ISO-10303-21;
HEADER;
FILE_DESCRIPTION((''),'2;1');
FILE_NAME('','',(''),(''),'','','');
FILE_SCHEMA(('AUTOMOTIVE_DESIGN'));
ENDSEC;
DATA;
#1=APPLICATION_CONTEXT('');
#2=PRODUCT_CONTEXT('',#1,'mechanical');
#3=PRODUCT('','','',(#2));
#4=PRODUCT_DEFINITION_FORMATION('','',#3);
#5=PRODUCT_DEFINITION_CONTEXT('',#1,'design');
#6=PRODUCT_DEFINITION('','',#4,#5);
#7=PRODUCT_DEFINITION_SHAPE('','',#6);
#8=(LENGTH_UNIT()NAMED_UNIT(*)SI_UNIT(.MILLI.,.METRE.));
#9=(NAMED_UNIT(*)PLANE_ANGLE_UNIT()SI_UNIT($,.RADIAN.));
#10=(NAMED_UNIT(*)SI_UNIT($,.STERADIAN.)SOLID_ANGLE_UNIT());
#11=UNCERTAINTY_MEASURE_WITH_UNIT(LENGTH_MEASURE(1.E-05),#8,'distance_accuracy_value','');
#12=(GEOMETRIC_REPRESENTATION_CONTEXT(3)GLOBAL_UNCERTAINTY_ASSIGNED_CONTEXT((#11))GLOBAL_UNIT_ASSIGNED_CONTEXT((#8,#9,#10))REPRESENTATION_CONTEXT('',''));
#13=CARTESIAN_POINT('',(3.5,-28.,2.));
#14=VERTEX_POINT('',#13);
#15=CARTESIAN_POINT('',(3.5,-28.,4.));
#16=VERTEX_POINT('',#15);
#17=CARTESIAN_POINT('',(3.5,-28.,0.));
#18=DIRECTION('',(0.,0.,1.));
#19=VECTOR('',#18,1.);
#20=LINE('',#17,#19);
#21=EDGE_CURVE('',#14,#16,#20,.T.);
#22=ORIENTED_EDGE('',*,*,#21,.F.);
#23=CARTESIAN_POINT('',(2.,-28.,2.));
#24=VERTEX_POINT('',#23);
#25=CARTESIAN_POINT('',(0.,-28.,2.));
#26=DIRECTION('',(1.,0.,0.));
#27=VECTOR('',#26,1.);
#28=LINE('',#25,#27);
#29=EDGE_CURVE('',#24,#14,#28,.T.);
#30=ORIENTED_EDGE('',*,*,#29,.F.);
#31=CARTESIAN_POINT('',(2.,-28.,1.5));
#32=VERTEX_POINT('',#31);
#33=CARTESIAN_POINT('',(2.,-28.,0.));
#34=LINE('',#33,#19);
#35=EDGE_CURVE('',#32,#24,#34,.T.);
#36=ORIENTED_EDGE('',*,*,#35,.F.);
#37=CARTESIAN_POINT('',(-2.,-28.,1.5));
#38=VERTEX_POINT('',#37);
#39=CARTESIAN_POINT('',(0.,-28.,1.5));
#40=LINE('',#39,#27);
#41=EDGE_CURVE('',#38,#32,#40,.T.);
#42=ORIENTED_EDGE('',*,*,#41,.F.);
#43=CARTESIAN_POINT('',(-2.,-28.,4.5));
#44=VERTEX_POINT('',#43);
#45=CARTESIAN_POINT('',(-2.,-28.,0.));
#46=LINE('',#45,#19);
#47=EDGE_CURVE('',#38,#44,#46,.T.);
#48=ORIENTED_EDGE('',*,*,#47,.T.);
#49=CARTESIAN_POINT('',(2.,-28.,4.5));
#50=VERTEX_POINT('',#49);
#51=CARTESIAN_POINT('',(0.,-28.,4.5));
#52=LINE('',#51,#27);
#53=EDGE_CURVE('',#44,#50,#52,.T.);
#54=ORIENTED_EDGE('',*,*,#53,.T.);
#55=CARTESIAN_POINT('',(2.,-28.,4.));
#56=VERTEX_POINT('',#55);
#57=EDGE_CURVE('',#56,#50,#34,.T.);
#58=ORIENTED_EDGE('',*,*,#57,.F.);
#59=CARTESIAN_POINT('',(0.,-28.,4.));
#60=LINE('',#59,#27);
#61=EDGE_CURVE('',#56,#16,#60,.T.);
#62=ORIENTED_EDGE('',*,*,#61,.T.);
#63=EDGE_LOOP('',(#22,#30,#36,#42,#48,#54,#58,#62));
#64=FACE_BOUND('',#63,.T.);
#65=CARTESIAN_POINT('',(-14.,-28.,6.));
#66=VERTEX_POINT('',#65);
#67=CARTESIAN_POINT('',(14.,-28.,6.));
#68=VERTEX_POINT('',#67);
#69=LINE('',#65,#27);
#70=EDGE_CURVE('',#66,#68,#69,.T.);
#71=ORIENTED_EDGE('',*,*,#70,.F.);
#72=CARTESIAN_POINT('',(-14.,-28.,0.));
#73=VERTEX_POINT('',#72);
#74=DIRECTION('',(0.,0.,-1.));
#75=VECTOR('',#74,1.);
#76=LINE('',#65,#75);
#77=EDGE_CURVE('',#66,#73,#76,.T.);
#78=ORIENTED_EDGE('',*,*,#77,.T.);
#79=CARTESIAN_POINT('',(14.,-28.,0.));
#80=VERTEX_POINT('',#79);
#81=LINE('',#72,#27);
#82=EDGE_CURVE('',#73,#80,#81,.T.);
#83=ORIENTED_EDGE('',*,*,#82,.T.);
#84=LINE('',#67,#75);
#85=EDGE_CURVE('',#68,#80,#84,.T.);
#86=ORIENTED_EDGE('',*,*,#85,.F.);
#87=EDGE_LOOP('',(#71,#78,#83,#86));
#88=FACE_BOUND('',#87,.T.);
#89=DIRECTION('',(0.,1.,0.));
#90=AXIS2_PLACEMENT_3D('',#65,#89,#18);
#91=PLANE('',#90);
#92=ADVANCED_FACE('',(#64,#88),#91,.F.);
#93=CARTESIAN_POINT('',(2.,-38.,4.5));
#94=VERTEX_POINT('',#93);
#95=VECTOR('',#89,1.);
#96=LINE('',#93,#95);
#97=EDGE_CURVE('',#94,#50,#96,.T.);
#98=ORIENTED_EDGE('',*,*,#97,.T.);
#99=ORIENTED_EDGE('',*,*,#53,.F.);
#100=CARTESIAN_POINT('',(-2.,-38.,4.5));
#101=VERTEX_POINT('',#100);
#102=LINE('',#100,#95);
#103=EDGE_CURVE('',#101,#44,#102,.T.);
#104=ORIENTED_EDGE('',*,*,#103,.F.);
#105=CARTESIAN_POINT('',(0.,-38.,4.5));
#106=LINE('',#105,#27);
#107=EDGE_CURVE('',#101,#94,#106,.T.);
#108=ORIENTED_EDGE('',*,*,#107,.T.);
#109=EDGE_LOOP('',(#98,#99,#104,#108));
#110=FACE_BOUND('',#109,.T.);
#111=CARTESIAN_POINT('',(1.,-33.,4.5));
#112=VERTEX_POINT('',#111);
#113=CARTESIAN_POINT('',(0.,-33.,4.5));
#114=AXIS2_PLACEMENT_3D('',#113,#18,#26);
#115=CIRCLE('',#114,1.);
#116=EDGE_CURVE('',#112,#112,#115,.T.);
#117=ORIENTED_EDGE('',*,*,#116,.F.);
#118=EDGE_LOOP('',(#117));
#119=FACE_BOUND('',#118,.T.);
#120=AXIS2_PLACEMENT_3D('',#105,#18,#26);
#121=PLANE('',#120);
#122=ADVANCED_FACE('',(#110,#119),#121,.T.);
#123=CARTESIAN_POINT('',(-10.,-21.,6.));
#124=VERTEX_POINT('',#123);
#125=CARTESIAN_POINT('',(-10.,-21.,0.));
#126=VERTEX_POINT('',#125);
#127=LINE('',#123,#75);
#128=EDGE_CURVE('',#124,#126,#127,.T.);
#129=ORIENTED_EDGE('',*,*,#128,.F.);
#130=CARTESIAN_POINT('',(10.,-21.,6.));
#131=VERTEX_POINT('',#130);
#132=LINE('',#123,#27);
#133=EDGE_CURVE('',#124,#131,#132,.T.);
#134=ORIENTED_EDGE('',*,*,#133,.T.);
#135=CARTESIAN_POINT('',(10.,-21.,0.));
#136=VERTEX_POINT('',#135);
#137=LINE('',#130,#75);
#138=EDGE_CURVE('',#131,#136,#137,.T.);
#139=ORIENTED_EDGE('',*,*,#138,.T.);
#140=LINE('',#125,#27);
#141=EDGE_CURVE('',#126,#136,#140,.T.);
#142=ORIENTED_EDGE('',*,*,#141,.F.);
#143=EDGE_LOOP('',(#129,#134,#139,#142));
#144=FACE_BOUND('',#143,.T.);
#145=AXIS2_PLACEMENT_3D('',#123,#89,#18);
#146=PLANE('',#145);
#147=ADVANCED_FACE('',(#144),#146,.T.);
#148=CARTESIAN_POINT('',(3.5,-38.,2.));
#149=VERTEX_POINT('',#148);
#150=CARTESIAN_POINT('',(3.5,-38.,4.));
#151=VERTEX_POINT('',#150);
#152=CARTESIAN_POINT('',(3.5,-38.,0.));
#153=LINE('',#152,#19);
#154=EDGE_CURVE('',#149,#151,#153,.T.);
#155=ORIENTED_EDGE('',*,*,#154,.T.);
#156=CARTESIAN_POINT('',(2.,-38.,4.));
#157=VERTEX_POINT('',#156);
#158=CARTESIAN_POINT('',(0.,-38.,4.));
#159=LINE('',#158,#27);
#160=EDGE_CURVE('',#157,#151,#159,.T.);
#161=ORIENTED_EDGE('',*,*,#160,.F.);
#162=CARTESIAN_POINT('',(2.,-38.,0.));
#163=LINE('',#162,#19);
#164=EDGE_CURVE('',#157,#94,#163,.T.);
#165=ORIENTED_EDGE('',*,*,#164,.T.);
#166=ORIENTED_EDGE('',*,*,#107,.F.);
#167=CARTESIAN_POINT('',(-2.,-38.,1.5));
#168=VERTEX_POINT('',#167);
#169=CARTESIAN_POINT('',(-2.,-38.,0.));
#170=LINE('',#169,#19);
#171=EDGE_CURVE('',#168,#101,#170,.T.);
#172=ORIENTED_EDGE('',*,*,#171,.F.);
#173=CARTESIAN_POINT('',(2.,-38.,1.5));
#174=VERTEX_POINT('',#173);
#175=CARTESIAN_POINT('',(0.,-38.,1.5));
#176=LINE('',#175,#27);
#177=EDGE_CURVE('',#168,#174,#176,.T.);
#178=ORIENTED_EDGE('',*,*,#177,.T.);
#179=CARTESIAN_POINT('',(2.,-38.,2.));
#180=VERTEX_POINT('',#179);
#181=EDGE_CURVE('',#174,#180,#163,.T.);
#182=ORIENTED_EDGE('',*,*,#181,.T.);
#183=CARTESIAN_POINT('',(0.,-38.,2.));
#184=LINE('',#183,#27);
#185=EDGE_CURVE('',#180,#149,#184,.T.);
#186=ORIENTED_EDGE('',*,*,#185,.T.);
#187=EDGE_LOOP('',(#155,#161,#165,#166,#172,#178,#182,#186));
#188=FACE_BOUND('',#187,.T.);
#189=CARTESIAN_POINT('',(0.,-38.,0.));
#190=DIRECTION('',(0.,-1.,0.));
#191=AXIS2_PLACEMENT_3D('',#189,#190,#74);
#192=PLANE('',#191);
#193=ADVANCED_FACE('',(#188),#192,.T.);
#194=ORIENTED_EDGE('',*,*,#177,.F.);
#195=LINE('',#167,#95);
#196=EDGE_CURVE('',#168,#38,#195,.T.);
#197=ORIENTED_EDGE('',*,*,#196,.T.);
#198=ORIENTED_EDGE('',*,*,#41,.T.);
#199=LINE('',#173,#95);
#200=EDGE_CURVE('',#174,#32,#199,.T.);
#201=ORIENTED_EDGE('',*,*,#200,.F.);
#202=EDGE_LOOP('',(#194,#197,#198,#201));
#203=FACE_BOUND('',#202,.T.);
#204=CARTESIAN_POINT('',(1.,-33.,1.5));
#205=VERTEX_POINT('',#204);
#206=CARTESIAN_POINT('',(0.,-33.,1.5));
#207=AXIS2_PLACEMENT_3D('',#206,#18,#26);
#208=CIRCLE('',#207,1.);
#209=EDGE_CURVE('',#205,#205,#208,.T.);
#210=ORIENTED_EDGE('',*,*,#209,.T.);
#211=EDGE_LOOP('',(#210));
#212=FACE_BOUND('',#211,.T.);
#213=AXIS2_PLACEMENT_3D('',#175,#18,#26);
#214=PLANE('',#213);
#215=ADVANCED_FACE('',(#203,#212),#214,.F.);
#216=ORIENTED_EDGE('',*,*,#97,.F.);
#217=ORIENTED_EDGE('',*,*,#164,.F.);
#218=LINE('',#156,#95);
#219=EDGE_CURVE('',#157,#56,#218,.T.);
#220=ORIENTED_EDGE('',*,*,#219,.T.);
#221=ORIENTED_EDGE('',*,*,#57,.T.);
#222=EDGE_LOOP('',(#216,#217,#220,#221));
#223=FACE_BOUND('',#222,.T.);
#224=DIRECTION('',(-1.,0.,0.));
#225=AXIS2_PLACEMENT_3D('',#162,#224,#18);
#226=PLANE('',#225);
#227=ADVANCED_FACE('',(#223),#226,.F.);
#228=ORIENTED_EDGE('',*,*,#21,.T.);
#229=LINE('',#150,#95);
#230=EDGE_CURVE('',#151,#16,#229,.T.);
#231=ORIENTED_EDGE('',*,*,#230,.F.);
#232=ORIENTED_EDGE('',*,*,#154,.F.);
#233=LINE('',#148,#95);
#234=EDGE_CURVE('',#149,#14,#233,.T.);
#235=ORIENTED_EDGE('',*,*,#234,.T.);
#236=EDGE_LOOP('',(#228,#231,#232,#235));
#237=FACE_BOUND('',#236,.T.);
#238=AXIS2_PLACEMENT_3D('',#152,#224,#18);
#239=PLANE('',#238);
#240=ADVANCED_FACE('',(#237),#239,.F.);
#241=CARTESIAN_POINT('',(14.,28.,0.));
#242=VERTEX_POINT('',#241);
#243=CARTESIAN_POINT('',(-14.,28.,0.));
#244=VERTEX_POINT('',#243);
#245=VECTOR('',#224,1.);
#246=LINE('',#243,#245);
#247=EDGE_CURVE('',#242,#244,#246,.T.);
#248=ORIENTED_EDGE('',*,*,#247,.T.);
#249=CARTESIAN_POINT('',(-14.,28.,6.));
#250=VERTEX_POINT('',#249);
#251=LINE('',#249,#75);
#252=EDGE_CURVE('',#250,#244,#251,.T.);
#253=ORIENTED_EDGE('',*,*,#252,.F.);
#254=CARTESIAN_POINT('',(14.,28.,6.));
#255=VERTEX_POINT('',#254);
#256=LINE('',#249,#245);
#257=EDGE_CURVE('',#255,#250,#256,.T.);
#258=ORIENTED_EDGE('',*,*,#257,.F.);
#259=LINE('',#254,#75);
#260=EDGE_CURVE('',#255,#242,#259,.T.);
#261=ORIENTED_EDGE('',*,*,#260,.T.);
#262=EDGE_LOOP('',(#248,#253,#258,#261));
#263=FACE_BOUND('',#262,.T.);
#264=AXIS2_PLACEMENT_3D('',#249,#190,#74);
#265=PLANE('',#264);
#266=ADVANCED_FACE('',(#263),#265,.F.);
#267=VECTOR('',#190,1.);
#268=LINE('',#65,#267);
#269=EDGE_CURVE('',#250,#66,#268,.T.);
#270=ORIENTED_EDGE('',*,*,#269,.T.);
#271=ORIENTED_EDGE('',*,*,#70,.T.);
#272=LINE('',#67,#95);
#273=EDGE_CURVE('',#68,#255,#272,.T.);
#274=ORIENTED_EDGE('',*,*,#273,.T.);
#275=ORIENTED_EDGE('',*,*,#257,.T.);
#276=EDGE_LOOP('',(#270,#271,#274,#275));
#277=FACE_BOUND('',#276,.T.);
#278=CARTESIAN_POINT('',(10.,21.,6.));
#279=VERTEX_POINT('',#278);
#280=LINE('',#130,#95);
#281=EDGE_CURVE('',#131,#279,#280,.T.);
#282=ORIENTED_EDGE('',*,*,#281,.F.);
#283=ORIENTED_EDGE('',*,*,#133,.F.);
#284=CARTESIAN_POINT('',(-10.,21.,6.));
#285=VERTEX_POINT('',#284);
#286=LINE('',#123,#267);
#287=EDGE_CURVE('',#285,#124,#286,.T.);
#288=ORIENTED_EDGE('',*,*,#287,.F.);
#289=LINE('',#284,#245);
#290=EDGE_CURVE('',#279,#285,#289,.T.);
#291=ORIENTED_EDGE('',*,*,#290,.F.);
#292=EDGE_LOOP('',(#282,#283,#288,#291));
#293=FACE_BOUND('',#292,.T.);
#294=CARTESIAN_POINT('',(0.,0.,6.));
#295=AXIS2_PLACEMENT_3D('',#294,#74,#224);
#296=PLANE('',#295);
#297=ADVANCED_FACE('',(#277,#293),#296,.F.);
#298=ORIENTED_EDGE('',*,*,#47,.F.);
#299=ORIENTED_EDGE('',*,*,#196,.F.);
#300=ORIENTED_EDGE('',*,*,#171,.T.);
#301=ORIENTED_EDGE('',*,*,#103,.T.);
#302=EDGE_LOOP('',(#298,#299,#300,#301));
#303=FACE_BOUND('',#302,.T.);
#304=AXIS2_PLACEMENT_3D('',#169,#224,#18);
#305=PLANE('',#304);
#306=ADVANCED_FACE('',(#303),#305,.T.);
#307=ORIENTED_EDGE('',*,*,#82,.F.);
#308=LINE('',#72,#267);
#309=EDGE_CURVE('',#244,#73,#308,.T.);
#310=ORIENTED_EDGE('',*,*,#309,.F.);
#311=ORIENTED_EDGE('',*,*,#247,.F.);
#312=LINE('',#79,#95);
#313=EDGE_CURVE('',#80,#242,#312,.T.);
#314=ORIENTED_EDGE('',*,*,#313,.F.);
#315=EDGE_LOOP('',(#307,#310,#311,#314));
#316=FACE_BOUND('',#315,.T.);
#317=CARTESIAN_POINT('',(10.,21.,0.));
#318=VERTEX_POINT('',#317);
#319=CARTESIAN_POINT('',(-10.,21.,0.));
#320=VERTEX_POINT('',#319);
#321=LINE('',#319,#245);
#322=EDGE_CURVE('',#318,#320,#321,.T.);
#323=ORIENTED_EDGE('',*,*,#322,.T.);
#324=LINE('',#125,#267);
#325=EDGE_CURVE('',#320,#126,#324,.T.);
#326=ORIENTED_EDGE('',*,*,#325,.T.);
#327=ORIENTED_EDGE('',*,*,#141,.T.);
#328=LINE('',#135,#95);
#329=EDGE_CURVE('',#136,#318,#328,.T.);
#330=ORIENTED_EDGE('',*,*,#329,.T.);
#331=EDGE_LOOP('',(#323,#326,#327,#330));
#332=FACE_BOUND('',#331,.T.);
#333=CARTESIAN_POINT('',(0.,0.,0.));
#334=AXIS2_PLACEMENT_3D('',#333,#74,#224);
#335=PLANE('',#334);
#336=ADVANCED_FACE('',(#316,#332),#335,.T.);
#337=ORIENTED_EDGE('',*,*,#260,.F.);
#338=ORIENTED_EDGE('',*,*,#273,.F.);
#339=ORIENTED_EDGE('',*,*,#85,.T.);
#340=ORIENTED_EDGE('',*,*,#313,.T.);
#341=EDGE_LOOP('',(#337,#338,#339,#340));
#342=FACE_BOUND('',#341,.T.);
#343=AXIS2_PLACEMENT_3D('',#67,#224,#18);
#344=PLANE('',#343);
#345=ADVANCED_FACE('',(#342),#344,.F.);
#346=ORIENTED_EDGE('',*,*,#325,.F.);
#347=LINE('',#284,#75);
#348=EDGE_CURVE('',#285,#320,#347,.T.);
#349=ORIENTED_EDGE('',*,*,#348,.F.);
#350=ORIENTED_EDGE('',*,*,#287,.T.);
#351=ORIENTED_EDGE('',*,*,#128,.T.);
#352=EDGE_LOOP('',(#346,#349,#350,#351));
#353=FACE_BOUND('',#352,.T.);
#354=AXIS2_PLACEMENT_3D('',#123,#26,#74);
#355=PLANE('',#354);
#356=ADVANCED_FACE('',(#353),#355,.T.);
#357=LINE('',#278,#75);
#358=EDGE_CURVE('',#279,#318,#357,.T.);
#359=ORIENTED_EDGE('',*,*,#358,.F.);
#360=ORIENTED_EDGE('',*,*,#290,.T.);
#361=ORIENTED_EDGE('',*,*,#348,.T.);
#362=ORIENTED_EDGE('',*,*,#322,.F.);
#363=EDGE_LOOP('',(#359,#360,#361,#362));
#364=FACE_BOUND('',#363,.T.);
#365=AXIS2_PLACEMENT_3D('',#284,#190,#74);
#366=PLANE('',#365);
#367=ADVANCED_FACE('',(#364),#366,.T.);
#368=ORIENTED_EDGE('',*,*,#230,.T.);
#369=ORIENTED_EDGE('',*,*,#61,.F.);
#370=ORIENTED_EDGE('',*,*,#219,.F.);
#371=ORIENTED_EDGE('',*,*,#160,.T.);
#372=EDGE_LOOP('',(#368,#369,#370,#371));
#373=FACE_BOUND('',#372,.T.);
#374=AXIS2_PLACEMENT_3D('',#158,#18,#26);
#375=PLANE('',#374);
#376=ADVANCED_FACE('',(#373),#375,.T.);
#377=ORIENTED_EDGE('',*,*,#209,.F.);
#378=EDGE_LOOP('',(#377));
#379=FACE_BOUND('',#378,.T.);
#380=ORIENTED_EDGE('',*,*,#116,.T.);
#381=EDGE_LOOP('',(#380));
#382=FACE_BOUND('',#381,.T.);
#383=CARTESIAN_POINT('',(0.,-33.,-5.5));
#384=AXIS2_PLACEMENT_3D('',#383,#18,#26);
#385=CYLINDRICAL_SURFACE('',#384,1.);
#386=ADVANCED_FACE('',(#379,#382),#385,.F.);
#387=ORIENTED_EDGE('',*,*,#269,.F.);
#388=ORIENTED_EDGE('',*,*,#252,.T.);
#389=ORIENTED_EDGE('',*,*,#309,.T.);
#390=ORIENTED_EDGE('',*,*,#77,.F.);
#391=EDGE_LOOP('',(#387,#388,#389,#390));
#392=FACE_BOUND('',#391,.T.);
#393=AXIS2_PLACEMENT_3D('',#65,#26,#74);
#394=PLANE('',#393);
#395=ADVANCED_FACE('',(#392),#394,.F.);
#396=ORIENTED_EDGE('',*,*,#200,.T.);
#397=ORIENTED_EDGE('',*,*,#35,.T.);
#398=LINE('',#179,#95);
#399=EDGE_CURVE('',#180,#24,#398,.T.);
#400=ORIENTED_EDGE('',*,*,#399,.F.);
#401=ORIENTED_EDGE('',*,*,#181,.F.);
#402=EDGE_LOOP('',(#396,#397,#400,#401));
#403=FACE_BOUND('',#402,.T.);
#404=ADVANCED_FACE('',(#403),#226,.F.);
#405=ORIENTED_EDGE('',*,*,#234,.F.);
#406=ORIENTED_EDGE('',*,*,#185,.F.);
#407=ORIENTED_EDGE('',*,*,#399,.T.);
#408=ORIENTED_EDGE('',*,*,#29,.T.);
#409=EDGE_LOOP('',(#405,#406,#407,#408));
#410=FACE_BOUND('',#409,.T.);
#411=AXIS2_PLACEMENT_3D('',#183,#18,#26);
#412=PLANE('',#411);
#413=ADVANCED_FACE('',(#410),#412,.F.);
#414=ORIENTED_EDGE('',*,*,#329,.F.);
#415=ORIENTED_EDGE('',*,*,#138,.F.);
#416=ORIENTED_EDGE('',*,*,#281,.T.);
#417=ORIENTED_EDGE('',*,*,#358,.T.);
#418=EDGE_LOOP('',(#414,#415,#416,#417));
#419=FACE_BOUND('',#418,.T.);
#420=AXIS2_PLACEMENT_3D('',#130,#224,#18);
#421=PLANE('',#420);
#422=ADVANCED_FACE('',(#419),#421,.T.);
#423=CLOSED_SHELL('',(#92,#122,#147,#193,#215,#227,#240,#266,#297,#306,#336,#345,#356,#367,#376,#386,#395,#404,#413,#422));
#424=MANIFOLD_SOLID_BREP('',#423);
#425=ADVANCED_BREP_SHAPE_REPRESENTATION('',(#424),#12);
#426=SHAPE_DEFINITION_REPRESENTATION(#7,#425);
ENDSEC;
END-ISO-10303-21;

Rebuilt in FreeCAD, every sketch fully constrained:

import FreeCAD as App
import Part
import Sketcher
from FreeCAD import Vector
Q = App.Units.Quantity

doc = App.newDocument("Part")
params = doc.addObject("Spreadsheet::Sheet", "Params")
for row, (alias, value) in enumerate([
    ("sketch1_width", "28 mm"),
    ("sketch1_width2", "20 mm"),
    ("sketch1_height", "56 mm"),
    ("sketch1_height2", "42 mm"),
    ("pad1_length", "6 mm"),
    ("sketch2_width", "4 mm"),
    ("sketch2_height", "3 mm"),
    ("sketch2_height2", "2 mm"),
    ("sketch2_width2", "1.5 mm"),
    ("pad2_length", "10 mm"),
    ("sketch3_diameter", "2 mm"),
    ("pocket1_length", "10 mm"),
], start=1):
    params.set(f"A{row}", alias)
    params.set(f"B{row}", "=" + value)
    params.setAlias(f"B{row}", alias)

body = doc.addObject("PartDesign::Body", "Body")

# Sketch on XY plane
sketch1 = body.newObject("Sketcher::SketchObject", "Sketch")
sketch1.AttachmentSupport = (doc.getObject("XY_Plane"), [""])
sketch1.MapMode = "FlatFace"
sketch1.addGeometry([
    Part.LineSegment(Vector(-14, 28, 0), Vector(-14, -28, 0)),  # 0
    Part.LineSegment(Vector(-14, -28, 0), Vector(14, -28, 0)),  # 1
    Part.LineSegment(Vector(14, -28, 0), Vector(14, 28, 0)),  # 2
    Part.LineSegment(Vector(14, 28, 0), Vector(-14, 28, 0)),  # 3
    Part.LineSegment(Vector(10, -21, 0), Vector(-10, -21, 0)),  # 4
    Part.LineSegment(Vector(-10, -21, 0), Vector(-10, 21, 0)),  # 5
    Part.LineSegment(Vector(-10, 21, 0), Vector(10, 21, 0)),  # 6
    Part.LineSegment(Vector(10, 21, 0), Vector(10, -21, 0)),  # 7
], False)
sketch1.addConstraint([
    Sketcher.Constraint("Coincident", 0, 2, 1, 1),
    Sketcher.Constraint("Coincident", 1, 2, 2, 1),
    Sketcher.Constraint("Coincident", 2, 2, 3, 1),
    Sketcher.Constraint("Coincident", 3, 2, 0, 1),
    Sketcher.Constraint("Coincident", 4, 2, 5, 1),
    Sketcher.Constraint("Coincident", 5, 2, 6, 1),
    Sketcher.Constraint("Coincident", 6, 2, 7, 1),
    Sketcher.Constraint("Coincident", 7, 2, 4, 1),
    Sketcher.Constraint("Vertical", 0),
    Sketcher.Constraint("Horizontal", 1),
    Sketcher.Constraint("Vertical", 2),
    Sketcher.Constraint("Horizontal", 3),
    Sketcher.Constraint("Horizontal", 4),
    Sketcher.Constraint("Vertical", 5),
    Sketcher.Constraint("Horizontal", 6),
    Sketcher.Constraint("Vertical", 7),
    Sketcher.Constraint("Symmetric", 0, 2, 2, 2, -1, 1),
    Sketcher.Constraint("Symmetric", 4, 2, 6, 2, -1, 1),
    Sketcher.Constraint("DistanceX", 1, 1, 1, 2, Q("28 mm")),
    Sketcher.Constraint("DistanceX", 4, 2, 4, 1, Q("20 mm")),
    Sketcher.Constraint("DistanceY", 0, 2, 0, 1, Q("56 mm")),
    Sketcher.Constraint("DistanceY", 5, 1, 5, 2, Q("42 mm")),
])
sketch1.setExpression("Constraints[18]", "Params.sketch1_width")
sketch1.setExpression("Constraints[19]", "Params.sketch1_width2")
sketch1.setExpression("Constraints[20]", "Params.sketch1_height")
sketch1.setExpression("Constraints[21]", "Params.sketch1_height2")
pad1 = body.newObject("PartDesign::Pad", "Pad")
pad1.Profile = sketch1
pad1.setExpression("Length", "Params.pad1_length")

# Sketch on XZ plane
sketch2 = body.newObject("Sketcher::SketchObject", "Sketch001")
sketch2.AttachmentSupport = (doc.getObject("XZ_Plane"), [""])
sketch2.MapMode = "FlatFace"
sketch2.AttachmentOffset = App.Placement(Vector(0, 0, 28), App.Rotation())
sketch2.addGeometry([
    Part.LineSegment(Vector(-2, 4.5, 0), Vector(-2, 1.5, 0)),  # 0
    Part.LineSegment(Vector(-2, 1.5, 0), Vector(2, 1.5, 0)),  # 1
    Part.LineSegment(Vector(2, 1.5, 0), Vector(2, 2, 0)),  # 2
    Part.LineSegment(Vector(2, 2, 0), Vector(3.5, 2, 0)),  # 3
    Part.LineSegment(Vector(3.5, 2, 0), Vector(3.5, 4, 0)),  # 4
    Part.LineSegment(Vector(3.5, 4, 0), Vector(2, 4, 0)),  # 5
    Part.LineSegment(Vector(2, 4, 0), Vector(2, 4.5, 0)),  # 6
    Part.LineSegment(Vector(2, 4.5, 0), Vector(-2, 4.5, 0)),  # 7
], False)
sketch2.addConstraint([
    Sketcher.Constraint("Coincident", 0, 2, 1, 1),
    Sketcher.Constraint("Coincident", 1, 2, 2, 1),
    Sketcher.Constraint("Coincident", 2, 2, 3, 1),
    Sketcher.Constraint("Coincident", 3, 2, 4, 1),
    Sketcher.Constraint("Coincident", 4, 2, 5, 1),
    Sketcher.Constraint("Coincident", 5, 2, 6, 1),
    Sketcher.Constraint("Coincident", 6, 2, 7, 1),
    Sketcher.Constraint("Coincident", 7, 2, 0, 1),
    Sketcher.Constraint("Vertical", 0),
    Sketcher.Constraint("Horizontal", 1),
    Sketcher.Constraint("Vertical", 2),
    Sketcher.Constraint("Horizontal", 3),
    Sketcher.Constraint("Vertical", 4),
    Sketcher.Constraint("Horizontal", 5),
    Sketcher.Constraint("Vertical", 6),
    Sketcher.Constraint("Horizontal", 7),
    Sketcher.Constraint("Vertical", 2, 2, 5, 2),
    Sketcher.Constraint("Equal", 2, 6),
    Sketcher.Constraint("DistanceX", 1, 1, 1, 2, Q("4 mm")),
    Sketcher.Constraint("DistanceY", 0, 2, 0, 1, Q("3 mm")),
    Sketcher.Constraint("DistanceY", 4, 1, 4, 2, Q("2 mm")),
    Sketcher.Constraint("DistanceX", 3, 1, 3, 2, Q("1.5 mm")),
    Sketcher.Constraint("DistanceX", 0, 2, -1, 1, Q("2 mm")),
    Sketcher.Constraint("DistanceY", -1, 1, 2, 2, Q("2 mm")),
])
sketch2.setExpression("Constraints[18]", "Params.sketch2_width")
sketch2.setExpression("Constraints[19]", "Params.sketch2_height")
sketch2.setExpression("Constraints[20]", "Params.sketch2_height2")
sketch2.setExpression("Constraints[21]", "Params.sketch2_width2")
pad2 = body.newObject("PartDesign::Pad", "Pad001")
pad2.Profile = sketch2
pad2.setExpression("Length", "Params.pad2_length")

# Sketch on XY plane
sketch3 = body.newObject("Sketcher::SketchObject", "Sketch002")
sketch3.AttachmentSupport = (doc.getObject("XY_Plane"), [""])
sketch3.MapMode = "FlatFace"
sketch3.AttachmentOffset = App.Placement(Vector(0, 0, 4.5), App.Rotation())
sketch3.addGeometry(Part.Circle(Vector(0, -33, 0), Vector(0, 0, 1), 1), False)
sketch3.addConstraint([
    Sketcher.Constraint("PointOnObject", 0, 3, -2),
    Sketcher.Constraint("Diameter", 0, Q("2 mm")),
    Sketcher.Constraint("DistanceY", 0, 3, -1, 1, Q("33 mm")),
])
sketch3.setExpression("Constraints[1]", "Params.sketch3_diameter")
pocket1 = body.newObject("PartDesign::Pocket", "Pocket")
pocket1.Profile = sketch3
pocket1.setExpression("Length", "Params.pocket1_length")

doc.recompute()
